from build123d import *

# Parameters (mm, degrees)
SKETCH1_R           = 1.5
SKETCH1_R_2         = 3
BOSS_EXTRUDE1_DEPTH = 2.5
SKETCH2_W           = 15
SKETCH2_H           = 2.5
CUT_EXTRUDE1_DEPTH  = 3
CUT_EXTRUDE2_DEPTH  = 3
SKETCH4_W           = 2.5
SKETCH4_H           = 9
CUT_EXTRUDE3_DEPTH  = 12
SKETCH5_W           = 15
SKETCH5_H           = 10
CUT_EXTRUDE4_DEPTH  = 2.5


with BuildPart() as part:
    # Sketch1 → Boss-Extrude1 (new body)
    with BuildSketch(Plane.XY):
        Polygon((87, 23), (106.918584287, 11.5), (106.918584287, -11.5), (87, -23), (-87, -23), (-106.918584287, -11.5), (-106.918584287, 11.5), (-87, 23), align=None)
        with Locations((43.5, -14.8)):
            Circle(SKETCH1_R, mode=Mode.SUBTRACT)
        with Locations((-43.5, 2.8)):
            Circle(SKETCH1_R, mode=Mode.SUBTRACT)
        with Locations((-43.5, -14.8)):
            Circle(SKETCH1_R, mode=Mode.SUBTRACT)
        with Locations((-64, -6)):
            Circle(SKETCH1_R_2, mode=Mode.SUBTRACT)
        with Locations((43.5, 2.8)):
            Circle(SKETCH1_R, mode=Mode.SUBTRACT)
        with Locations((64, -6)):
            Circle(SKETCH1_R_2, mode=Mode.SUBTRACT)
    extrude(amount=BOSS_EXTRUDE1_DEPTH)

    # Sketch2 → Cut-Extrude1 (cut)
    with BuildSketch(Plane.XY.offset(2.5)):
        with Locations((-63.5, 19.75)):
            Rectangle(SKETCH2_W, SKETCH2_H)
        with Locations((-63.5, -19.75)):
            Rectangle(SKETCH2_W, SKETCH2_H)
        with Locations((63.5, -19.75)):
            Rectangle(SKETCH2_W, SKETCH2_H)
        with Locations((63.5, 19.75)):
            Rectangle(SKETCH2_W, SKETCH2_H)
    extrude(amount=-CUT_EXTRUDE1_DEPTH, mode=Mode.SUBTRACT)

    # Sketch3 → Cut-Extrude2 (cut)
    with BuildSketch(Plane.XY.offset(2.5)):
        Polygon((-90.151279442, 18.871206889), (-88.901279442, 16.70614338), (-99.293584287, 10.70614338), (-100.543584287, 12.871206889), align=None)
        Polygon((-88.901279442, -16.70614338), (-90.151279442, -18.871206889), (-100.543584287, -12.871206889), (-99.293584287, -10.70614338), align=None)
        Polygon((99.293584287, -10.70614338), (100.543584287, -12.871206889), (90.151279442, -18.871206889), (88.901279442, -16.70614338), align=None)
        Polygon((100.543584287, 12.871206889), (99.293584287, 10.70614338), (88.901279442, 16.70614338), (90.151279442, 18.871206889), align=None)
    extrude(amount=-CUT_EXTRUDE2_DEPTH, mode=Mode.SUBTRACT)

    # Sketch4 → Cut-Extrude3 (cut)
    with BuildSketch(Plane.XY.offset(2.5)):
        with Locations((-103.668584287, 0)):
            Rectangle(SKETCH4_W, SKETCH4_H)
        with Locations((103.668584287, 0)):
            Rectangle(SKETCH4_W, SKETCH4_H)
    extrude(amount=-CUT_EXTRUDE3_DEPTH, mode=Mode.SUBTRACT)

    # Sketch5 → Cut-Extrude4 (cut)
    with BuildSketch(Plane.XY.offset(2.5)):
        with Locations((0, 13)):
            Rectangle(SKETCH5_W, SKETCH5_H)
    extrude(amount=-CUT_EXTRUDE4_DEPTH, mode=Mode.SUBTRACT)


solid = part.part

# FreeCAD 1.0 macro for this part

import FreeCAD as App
import Part
import Sketcher
from FreeCAD import Vector
Q = App.Units.Quantity


def add_polygon(sketch, points):
    """Adds a closed chain of lines whose ends are joined by coincident constraints."""
    first, n = sketch.GeometryCount, len(points)
    for a, b in zip(points, points[1:] + points[:1]):
        sketch.addGeometry(Part.LineSegment(App.Vector(*a, 0), App.Vector(*b, 0)), False)
    for i in range(n):
        sketch.addConstraint(Sketcher.Constraint("Coincident", first + i, 2, first + (i + 1) % n, 1))

doc = App.newDocument("Part")
params = doc.addObject("Spreadsheet::Sheet", "Params")
for row, (alias, value) in enumerate([
    ("sketch1_diameter", "3 mm"),
    ("sketch1_diameter2", "6 mm"),
    ("sketch1_width", "174 mm"),
    ("sketch1_height", "23 mm"),
    ("sketch1_length", "23 mm"),
    ("pad1_length", "2.5 mm"),
    ("sketch2_width", "15 mm"),
    ("sketch2_height", "2.5 mm"),
    ("pocket1_length", "3 mm"),
    ("sketch3_length", "12 mm"),
    ("sketch3_length2", "2.5 mm"),
    ("pocket2_length", "3 mm"),
    ("sketch4_height", "9 mm"),
    ("sketch4_width", "2.5 mm"),
    ("pocket3_length", "12 mm"),
    ("sketch5_width", "15 mm"),
    ("sketch5_height", "10 mm"),
    ("pocket4_length", "2.5 mm"),
], start=1):
    params.set(f"A{row}", alias)
    params.set(f"B{row}", "=" + value)
    params.setAlias(f"B{row}", alias)

body = doc.addObject("PartDesign::Body", "Body")

# Sketch on XY plane
sketch1 = body.newObject("Sketcher::SketchObject", "Sketch")
sketch1.AttachmentSupport = (doc.getObject("XY_Plane"), [""])
sketch1.MapMode = "FlatFace"
add_polygon(sketch1, [(106.9, 11.5), (87, 23), (-87, 23), (-106.9, 11.5), (-106.9, -11.5), (-87, -23), (87, -23), (106.9, -11.5)])  # lines 0-7
sketch1.addGeometry(Part.Circle(Vector(43.5, -14.8, 0), Vector(0, 0, 1), 1.5), False)  # 8
sketch1.addGeometry(Part.Circle(Vector(-43.5, -14.8, 0), Vector(0, 0, 1), 1.5), False)  # 9
sketch1.addGeometry(Part.Circle(Vector(64, -6, 0), Vector(0, 0, 1), 3), False)  # 10
sketch1.addGeometry(Part.Circle(Vector(43.5, 2.8, 0), Vector(0, 0, 1), 1.5), False)  # 11
sketch1.addGeometry(Part.Circle(Vector(-64, -6, 0), Vector(0, 0, 1), 3), False)  # 12
sketch1.addGeometry(Part.Circle(Vector(-43.5, 2.8, 0), Vector(0, 0, 1), 1.5), False)  # 13
sketch1.addConstraint([
    Sketcher.Constraint("Horizontal", 1),
    Sketcher.Constraint("Vertical", 3),
    Sketcher.Constraint("Horizontal", 5),
    Sketcher.Constraint("Vertical", 7),
    Sketcher.Constraint("Equal", 8, 9),
    Sketcher.Constraint("Equal", 9, 11),
    Sketcher.Constraint("Equal", 10, 12),
    Sketcher.Constraint("Equal", 11, 13),
    Sketcher.Constraint("Symmetric", 0, 2, 4, 2, -1, 1),
    Sketcher.Constraint("Symmetric", 2, 2, 6, 2, -1, 1),
    Sketcher.Constraint("Symmetric", 8, 3, 9, 3, -2),
    Sketcher.Constraint("Symmetric", 10, 3, 12, 3, -2),
    Sketcher.Constraint("Symmetric", 11, 3, 13, 3, -2),
    Sketcher.Constraint("Parallel", 0, 4),
    Sketcher.Constraint("Parallel", 2, 6),
    Sketcher.Constraint("Horizontal", 3, 2, 6, 2),
    Sketcher.Constraint("Vertical", 8, 3, 11, 3),
    Sketcher.Constraint("Vertical", 1, 2, 4, 2),
    Sketcher.Constraint("Diameter", 8, 3.0),
    Sketcher.Constraint("Diameter", 10, 6.0),
    Sketcher.Constraint("DistanceX", 1, 2, 1, 1, 174.0),
    Sketcher.Constraint("DistanceY", 3, 2, 3, 1, 23.0),
    Sketcher.Constraint("Angle", 0, Q("150 deg")),
    Sketcher.Constraint("Distance", 0, 23.0),
    Sketcher.Constraint("DistanceX", -1, 1, 10, 3, 64.0),
    Sketcher.Constraint("DistanceY", 10, 3, -1, 1, 6.0),
    Sketcher.Constraint("DistanceX", 9, 3, 8, 3, 87.0),
    Sketcher.Constraint("DistanceY", 8, 3, -1, 1, 14.8),
    Sketcher.Constraint("DistanceY", -1, 1, 11, 3, 2.8),
])
sketch1.setExpression("Constraints[26]", "Params.sketch1_diameter")
sketch1.setExpression("Constraints[27]", "Params.sketch1_diameter2")
sketch1.setExpression("Constraints[28]", "Params.sketch1_width")
sketch1.setExpression("Constraints[29]", "Params.sketch1_height")
sketch1.setExpression("Constraints[31]", "Params.sketch1_length")
pad1 = body.newObject("PartDesign::Pad", "Pad")
pad1.Profile = sketch1
pad1.setExpression("Length", "Params.pad1_length")

# Sketch on XY plane
sketch2 = body.newObject("Sketcher::SketchObject", "Sketch001")
sketch2.AttachmentSupport = (doc.getObject("XY_Plane"), [""])
sketch2.MapMode = "FlatFace"
sketch2.AttachmentOffset = App.Placement(Vector(0, 0, 2.5), App.Rotation())
add_polygon(sketch2, [(-71, 21), (-71, 18.5), (-56, 18.5), (-56, 21)])  # lines 0-3
add_polygon(sketch2, [(-71, -18.5), (-71, -21), (-56, -21), (-56, -18.5)])  # lines 4-7
add_polygon(sketch2, [(56, -18.5), (56, -21), (71, -21), (71, -18.5)])  # lines 8-11
add_polygon(sketch2, [(56, 21), (56, 18.5), (71, 18.5), (71, 21)])  # lines 12-15
sketch2.addConstraint([
    Sketcher.Constraint("Vertical", 0),
    Sketcher.Constraint("Horizontal", 1),
    Sketcher.Constraint("Vertical", 2),
    Sketcher.Constraint("Horizontal", 3),
    Sketcher.Constraint("Vertical", 4),
    Sketcher.Constraint("Horizontal", 5),
    Sketcher.Constraint("Vertical", 6),
    Sketcher.Constraint("Horizontal", 7),
    Sketcher.Constraint("Vertical", 8),
    Sketcher.Constraint("Horizontal", 9),
    Sketcher.Constraint("Vertical", 10),
    Sketcher.Constraint("Horizontal", 11),
    Sketcher.Constraint("Vertical", 12),
    Sketcher.Constraint("Horizontal", 13),
    Sketcher.Constraint("Vertical", 14),
    Sketcher.Constraint("Horizontal", 15),
    Sketcher.Constraint("Symmetric", 2, 2, 8, 2, -1, 1),
    Sketcher.Constraint("Symmetric", 0, 2, 10, 2, -1, 1),
    Sketcher.Constraint("Symmetric", 6, 2, 12, 2, -1, 1),
    Sketcher.Constraint("Symmetric", 4, 2, 14, 2, -1, 1),
    Sketcher.Constraint("Symmetric", 5, 2, 8, 2, -2),
    Sketcher.Constraint("Symmetric", 7, 2, 10, 2, -2),
    Sketcher.Constraint("DistanceX", 1, 1, 1, 2, 15.0),
    Sketcher.Constraint("DistanceY", 0, 2, 0, 1, 2.5),
    Sketcher.Constraint("DistanceX", 0, 2, -1, 1, 71.0),
    Sketcher.Constraint("DistanceY", -1, 1, 2, 2, 21.0),
])
sketch2.setExpression("Constraints[38]", "Params.sketch2_width")
sketch2.setExpression("Constraints[39]", "Params.sketch2_height")
pocket1 = body.newObject("PartDesign::Pocket", "Pocket")
pocket1.Profile = sketch2
pocket1.setExpression("Length", "Params.pocket1_length")

# Sketch on XY plane
sketch3 = body.newObject("Sketcher::SketchObject", "Sketch002")
sketch3.AttachmentSupport = (doc.getObject("XY_Plane"), [""])
sketch3.MapMode = "FlatFace"
sketch3.AttachmentOffset = App.Placement(Vector(0, 0, 2.5), App.Rotation())
add_polygon(sketch3, [(-88.9, 16.7), (-90.2, 18.9), (-100.5, 12.9), (-99.3, 10.7)])  # lines 0-3
add_polygon(sketch3, [(-90.2, -18.9), (-88.9, -16.7), (-99.3, -10.7), (-100.5, -12.9)])  # lines 4-7
add_polygon(sketch3, [(100.5, -12.9), (99.3, -10.7), (88.9, -16.7), (90.2, -18.9)])  # lines 8-11
add_polygon(sketch3, [(99.3, 10.7), (100.5, 12.9), (90.2, 18.9), (88.9, 16.7)])  # lines 12-15
sketch3.addConstraint([
    Sketcher.Constraint("Symmetric", 2, 2, 8, 2, -1, 1),
    Sketcher.Constraint("Symmetric", 3, 2, 9, 2, -1, 1),
    Sketcher.Constraint("Symmetric", 0, 2, 10, 2, -1, 1),
    Sketcher.Constraint("Symmetric", 1, 2, 11, 2, -1, 1),
    Sketcher.Constraint("Symmetric", 6, 2, 12, 2, -1, 1),
    Sketcher.Constraint("Symmetric", 7, 2, 13, 2, -1, 1),
    Sketcher.Constraint("Symmetric", 4, 2, 14, 2, -1, 1),
    Sketcher.Constraint("Symmetric", 5, 2, 15, 2, -1, 1),
    Sketcher.Constraint("Symmetric", 5, 2, 8, 2, -2),
    Sketcher.Constraint("Symmetric", 4, 2, 9, 2, -2),
    Sketcher.Constraint("Symmetric", 7, 2, 10, 2, -2),
    Sketcher.Constraint("Symmetric", 6, 2, 11, 2, -2),
    Sketcher.Constraint("Perpendicular", 0, 1),
    Sketcher.Constraint("Perpendicular", 1, 2),
    Sketcher.Constraint("Perpendicular", 2, 3),
    Sketcher.Constraint("Angle", 0, Q("120 deg")),
    Sketcher.Constraint("Distance", 1, 12.0),
    Sketcher.Constraint("Distance", 0, 2.5),
    Sketcher.Constraint("DistanceX", 0, 2, -1, 1, 90.151279),
    Sketcher.Constraint("DistanceY", 4, 2, 1, 2, 29.57735),
])
sketch3.setExpression("Constraints[32]", "Params.sketch3_length")
sketch3.setExpression("Constraints[33]", "Params.sketch3_length2")
pocket2 = body.newObject("PartDesign::Pocket", "Pocket001")
pocket2.Profile = sketch3
pocket2.setExpression("Length", "Params.pocket2_length")

# Sketch on XY plane
sketch4 = body.newObject("Sketcher::SketchObject", "Sketch003")
sketch4.AttachmentSupport = (doc.getObject("XY_Plane"), [""])
sketch4.MapMode = "FlatFace"
sketch4.AttachmentOffset = App.Placement(Vector(0, 0, 2.5), App.Rotation())
add_polygon(sketch4, [(-104.9, 4.5), (-104.9, -4.5), (-102.4, -4.5), (-102.4, 4.5)])  # lines 0-3
add_polygon(sketch4, [(102.4, 4.5), (102.4, -4.5), (104.9, -4.5), (104.9, 4.5)])  # lines 4-7
sketch4.addConstraint([
    Sketcher.Constraint("Vertical", 0),
    Sketcher.Constraint("Horizontal", 1),
    Sketcher.Constraint("Vertical", 2),
    Sketcher.Constraint("Horizontal", 3),
    Sketcher.Constraint("Vertical", 4),
    Sketcher.Constraint("Horizontal", 5),
    Sketcher.Constraint("Vertical", 6),
    Sketcher.Constraint("Horizontal", 7),
    Sketcher.Constraint("Symmetric", 2, 2, 4, 2, -1, 1),
    Sketcher.Constraint("Symmetric", 0, 2, 6, 2, -1, 1),
    Sketcher.Constraint("Horizontal", 1, 2, 4, 2),
    Sketcher.Constraint("DistanceY", 0, 2, 0, 1, 9.0),
    Sketcher.Constraint("DistanceX", 1, 1, 1, 2, 2.5),
    Sketcher.Constraint("DistanceX", 1, 2, 4, 2, 204.837169),
])
sketch4.setExpression("Constraints[19]", "Params.sketch4_height")
sketch4.setExpression("Constraints[20]", "Params.sketch4_width")
pocket3 = body.newObject("PartDesign::Pocket", "Pocket002")
pocket3.Profile = sketch4
pocket3.setExpression("Length", "Params.pocket3_length")

# Sketch on XY plane
sketch5 = body.newObject("Sketcher::SketchObject", "Sketch004")
sketch5.AttachmentSupport = (doc.getObject("XY_Plane"), [""])
sketch5.MapMode = "FlatFace"
sketch5.AttachmentOffset = App.Placement(Vector(0, 0, 2.5), App.Rotation())
add_polygon(sketch5, [(-8, 18), (-8, 8), (8, 8), (8, 18)])  # lines 0-3
sketch5.addConstraint([
    Sketcher.Constraint("Vertical", 0),
    Sketcher.Constraint("Horizontal", 1),
    Sketcher.Constraint("Vertical", 2),
    Sketcher.Constraint("Horizontal", 3),
    Sketcher.Constraint("DistanceX", 1, 1, 1, 2, 15.0),
    Sketcher.Constraint("DistanceY", 0, 2, 0, 1, 10.0),
    Sketcher.Constraint("DistanceY", -1, 1, 0, 2, 8.0),
    Sketcher.Constraint("DistanceX", 0, 2, -1, 1, 7.5),
])
sketch5.setExpression("Constraints[8]", "Params.sketch5_width")
sketch5.setExpression("Constraints[9]", "Params.sketch5_height")
pocket4 = body.newObject("PartDesign::Pocket", "Pocket003")
pocket4.Profile = sketch5
pocket4.setExpression("Length", "Params.pocket4_length")

doc.recompute()
